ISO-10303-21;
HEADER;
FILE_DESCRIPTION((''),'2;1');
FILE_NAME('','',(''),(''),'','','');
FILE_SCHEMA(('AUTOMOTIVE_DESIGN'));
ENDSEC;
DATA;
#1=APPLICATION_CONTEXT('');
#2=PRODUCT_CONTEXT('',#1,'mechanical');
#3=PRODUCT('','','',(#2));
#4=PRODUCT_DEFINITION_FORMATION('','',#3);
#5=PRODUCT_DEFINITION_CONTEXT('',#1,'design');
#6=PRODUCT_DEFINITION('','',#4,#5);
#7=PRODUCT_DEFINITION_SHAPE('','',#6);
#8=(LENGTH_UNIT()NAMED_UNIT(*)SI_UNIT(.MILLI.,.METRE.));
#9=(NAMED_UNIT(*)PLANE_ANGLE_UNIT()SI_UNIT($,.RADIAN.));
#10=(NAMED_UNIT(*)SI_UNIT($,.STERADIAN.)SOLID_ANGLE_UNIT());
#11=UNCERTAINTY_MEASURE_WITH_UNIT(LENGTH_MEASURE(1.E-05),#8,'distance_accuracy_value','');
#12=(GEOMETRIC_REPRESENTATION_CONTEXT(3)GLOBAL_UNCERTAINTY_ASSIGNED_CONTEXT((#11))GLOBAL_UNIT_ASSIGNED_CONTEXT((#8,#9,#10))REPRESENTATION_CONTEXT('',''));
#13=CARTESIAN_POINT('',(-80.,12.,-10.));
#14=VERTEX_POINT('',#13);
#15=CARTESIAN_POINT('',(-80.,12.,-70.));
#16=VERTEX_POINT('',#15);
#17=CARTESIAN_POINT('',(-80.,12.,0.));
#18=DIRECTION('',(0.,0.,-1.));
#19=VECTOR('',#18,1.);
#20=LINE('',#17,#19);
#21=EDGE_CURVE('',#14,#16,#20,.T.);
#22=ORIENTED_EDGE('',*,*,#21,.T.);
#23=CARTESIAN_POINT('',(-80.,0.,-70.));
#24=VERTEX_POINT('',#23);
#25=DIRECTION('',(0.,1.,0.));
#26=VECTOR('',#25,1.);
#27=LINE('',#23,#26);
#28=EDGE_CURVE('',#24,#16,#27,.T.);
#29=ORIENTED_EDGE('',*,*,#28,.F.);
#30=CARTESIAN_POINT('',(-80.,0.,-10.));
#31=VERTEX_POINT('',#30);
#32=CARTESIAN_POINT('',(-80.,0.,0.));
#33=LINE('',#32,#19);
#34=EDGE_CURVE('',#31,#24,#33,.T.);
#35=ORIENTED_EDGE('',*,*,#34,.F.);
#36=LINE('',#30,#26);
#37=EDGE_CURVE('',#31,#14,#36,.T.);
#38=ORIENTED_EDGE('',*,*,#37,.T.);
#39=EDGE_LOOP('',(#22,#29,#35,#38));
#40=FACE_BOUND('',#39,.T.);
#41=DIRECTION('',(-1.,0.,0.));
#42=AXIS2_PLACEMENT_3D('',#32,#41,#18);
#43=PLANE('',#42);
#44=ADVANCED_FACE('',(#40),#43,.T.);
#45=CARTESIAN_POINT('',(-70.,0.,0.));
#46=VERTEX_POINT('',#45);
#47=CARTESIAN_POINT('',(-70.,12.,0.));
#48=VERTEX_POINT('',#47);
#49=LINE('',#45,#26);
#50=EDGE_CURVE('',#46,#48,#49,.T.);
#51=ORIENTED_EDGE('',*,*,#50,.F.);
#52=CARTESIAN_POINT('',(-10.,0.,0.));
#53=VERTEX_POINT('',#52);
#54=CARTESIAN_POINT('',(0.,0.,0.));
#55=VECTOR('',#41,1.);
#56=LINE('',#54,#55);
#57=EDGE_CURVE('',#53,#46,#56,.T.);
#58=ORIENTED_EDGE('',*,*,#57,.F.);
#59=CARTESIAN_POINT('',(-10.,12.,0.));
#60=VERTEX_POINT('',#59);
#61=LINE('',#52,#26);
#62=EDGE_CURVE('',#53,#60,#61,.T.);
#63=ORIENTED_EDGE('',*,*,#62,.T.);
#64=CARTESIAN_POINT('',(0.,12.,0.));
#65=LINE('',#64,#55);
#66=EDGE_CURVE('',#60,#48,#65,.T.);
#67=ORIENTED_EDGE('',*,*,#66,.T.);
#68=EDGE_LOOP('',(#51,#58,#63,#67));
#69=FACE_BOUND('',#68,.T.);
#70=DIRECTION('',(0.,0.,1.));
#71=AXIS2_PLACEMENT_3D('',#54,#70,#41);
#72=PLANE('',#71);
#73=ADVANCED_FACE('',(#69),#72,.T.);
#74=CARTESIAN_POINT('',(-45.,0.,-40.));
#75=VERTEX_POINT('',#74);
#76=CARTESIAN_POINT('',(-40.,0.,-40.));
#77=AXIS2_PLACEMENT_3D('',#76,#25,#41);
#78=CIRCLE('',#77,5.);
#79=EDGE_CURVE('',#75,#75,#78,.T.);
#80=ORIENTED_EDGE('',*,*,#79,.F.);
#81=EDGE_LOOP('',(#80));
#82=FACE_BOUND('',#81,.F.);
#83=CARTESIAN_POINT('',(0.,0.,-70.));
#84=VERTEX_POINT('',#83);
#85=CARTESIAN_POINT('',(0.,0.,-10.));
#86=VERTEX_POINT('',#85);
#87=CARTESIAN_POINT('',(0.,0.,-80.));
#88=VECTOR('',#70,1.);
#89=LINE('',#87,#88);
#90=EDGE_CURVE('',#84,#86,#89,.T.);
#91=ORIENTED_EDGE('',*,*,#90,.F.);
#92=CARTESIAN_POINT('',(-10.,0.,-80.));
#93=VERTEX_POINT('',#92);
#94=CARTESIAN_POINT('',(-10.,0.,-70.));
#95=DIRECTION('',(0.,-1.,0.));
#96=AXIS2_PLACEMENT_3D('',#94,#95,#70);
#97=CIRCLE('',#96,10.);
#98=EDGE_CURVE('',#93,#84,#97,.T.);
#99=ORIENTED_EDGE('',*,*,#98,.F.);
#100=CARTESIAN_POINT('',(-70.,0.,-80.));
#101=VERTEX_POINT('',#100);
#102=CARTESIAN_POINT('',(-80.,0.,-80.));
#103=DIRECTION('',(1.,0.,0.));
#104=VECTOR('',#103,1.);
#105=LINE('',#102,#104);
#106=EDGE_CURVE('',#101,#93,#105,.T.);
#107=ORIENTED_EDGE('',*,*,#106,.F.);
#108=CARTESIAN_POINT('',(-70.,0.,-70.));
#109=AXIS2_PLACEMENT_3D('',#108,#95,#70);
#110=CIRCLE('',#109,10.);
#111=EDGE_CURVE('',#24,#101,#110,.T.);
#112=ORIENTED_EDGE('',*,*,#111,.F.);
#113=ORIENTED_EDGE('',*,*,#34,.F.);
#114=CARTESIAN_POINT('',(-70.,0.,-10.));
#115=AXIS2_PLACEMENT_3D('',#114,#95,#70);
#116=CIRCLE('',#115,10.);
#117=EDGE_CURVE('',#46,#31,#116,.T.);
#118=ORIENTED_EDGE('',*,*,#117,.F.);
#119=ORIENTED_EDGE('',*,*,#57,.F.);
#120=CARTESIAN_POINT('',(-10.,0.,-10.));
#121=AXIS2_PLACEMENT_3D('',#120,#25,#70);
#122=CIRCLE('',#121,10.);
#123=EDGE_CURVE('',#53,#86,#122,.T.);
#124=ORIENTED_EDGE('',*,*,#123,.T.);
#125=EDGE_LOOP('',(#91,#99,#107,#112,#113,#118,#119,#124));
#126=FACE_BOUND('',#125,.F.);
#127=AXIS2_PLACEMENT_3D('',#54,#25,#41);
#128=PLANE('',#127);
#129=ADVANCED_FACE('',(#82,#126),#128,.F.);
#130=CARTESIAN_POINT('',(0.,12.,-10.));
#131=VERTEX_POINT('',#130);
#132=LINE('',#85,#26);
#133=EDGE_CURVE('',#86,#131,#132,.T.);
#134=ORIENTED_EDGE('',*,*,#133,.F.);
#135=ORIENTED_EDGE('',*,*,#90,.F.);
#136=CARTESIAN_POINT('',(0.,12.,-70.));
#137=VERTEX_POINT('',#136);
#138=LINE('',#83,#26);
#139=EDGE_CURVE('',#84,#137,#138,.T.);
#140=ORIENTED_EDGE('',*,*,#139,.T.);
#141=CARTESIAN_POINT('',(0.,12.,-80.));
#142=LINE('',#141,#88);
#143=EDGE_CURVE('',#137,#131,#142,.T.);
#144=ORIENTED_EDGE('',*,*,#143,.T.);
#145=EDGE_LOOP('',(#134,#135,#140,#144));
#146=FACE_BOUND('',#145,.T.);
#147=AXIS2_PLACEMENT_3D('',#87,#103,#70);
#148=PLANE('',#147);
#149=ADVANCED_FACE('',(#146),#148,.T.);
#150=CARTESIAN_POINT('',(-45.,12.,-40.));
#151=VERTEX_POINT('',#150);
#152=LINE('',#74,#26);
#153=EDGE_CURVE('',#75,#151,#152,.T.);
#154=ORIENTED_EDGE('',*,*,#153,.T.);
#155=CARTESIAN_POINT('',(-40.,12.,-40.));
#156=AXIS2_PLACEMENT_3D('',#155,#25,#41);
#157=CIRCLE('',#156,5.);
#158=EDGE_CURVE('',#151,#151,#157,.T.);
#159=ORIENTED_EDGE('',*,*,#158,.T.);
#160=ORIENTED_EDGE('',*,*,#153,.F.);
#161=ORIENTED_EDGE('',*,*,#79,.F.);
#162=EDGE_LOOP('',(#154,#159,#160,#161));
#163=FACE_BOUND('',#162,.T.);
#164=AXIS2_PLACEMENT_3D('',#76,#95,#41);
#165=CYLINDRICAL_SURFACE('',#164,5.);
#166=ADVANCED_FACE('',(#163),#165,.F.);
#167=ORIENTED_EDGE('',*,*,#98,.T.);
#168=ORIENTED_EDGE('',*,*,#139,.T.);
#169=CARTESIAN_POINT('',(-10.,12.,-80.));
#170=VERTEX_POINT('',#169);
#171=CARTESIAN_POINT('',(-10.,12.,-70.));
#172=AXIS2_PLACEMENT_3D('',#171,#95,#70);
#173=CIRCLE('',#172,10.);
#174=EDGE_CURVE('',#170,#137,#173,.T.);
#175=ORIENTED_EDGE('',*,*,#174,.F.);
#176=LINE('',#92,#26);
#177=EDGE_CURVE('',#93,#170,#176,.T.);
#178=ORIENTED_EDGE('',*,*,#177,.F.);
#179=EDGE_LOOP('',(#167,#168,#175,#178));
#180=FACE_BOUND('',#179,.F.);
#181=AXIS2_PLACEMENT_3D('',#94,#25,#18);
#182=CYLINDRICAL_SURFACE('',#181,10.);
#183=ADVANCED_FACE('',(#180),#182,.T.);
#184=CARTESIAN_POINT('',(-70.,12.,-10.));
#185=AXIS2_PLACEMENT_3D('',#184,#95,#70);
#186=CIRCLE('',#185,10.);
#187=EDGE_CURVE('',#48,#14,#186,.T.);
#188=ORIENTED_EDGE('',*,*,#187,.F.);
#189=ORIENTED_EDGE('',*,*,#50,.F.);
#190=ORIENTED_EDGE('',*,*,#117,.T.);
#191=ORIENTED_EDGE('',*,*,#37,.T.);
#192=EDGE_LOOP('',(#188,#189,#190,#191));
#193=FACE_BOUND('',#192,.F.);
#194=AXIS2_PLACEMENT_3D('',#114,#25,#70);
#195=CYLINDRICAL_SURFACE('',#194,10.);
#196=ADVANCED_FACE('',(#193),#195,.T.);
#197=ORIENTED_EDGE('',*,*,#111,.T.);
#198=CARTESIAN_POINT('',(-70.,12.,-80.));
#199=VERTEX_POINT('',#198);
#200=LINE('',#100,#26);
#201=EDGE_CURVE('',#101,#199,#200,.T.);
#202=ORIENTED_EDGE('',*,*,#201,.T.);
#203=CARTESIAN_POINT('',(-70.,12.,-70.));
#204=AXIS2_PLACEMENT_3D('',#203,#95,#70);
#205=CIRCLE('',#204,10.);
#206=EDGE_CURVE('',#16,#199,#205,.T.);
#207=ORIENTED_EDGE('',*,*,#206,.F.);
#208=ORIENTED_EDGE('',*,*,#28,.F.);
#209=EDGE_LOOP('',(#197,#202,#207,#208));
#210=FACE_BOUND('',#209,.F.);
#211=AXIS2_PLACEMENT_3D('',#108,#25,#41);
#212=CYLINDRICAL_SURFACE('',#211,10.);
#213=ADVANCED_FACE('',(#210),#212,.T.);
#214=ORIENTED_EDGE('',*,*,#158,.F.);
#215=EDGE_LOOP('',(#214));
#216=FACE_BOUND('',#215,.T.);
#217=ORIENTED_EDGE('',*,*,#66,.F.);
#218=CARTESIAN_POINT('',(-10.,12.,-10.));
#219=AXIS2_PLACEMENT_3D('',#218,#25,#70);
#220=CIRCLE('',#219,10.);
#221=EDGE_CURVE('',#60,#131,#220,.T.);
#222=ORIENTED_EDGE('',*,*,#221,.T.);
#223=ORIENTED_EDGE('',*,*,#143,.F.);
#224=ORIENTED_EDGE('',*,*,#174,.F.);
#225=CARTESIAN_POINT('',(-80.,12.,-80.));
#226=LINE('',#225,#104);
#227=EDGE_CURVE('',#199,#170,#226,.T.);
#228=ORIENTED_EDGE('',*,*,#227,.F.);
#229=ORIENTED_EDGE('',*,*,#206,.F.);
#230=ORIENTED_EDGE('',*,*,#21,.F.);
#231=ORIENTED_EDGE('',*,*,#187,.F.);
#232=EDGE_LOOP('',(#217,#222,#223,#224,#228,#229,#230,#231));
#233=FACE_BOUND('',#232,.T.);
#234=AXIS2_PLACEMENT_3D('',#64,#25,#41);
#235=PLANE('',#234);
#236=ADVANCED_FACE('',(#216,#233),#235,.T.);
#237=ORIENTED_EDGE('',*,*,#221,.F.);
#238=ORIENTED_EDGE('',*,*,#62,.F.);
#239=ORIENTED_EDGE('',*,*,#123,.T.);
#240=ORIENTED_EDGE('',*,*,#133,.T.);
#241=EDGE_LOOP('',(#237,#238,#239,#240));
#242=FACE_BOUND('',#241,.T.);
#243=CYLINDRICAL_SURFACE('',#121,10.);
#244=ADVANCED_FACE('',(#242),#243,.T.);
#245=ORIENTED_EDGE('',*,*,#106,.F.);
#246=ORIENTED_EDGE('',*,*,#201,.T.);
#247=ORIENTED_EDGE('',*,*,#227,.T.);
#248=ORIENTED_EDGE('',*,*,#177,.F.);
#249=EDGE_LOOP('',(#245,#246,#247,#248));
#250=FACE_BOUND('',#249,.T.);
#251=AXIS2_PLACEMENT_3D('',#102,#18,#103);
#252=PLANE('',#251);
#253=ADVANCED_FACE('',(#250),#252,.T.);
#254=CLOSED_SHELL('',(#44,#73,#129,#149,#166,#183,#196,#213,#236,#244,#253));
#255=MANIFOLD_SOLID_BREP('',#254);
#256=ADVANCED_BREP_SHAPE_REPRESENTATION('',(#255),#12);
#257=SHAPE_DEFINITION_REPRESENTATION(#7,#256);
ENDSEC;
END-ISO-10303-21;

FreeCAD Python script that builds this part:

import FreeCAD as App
import Part
import Sketcher
from FreeCAD import Vector


def edges_at(feature, points):
    """Names of the edges that pass closest to the given points."""
    edges = feature.Shape.Edges
    near = lambda p: min(range(len(edges)), key=lambda i: edges[i].distToShape(Part.Vertex(*p))[0])
    return sorted({f"Edge{near(p) + 1}" for p in points})


def add_polygon(sketch, points):
    """Adds a closed chain of lines whose ends are joined by coincident constraints."""
    first, n = sketch.GeometryCount, len(points)
    for a, b in zip(points, points[1:] + points[:1]):
        sketch.addGeometry(Part.LineSegment(App.Vector(*a, 0), App.Vector(*b, 0)), False)
    for i in range(n):
        sketch.addConstraint(Sketcher.Constraint("Coincident", first + i, 2, first + (i + 1) % n, 1))

doc = App.newDocument("Part")
body = doc.addObject("PartDesign::Body", "Body")

sketch1 = doc.addObject("Sketcher::SketchObject", "Sketch")
body.addObject(sketch1)
sketch1.AttachmentSupport = (doc.XZ_Plane, [""])
sketch1.MapMode = "FlatFace"
add_polygon(sketch1, [(-80, 0), (0, 0), (0, -80), (-80, -80)])
sketch1.addGeometry(Part.Circle(Vector(-40, -40, 0), Vector(0, 0, 1), 5), False)
sketch1.addConstraint([
    Sketcher.Constraint("Horizontal", 0),
    Sketcher.Constraint("Vertical", 1),
    Sketcher.Constraint("Horizontal", 2),
    Sketcher.Constraint("Vertical", 3),
    Sketcher.Constraint("Coincident", 0, 2, -1, 1),
    Sketcher.Constraint("Equal", 2, 1),
    Sketcher.Constraint("Diameter", 4, 10.0),
    Sketcher.Constraint("DistanceX", 0, 1, 0, 2, 80.0),
    Sketcher.Constraint("DistanceX", 4, 3, -1, 1, 40.0),
    Sketcher.Constraint("DistanceY", 4, 3, -1, 1, 40.0),
])
pad1 = doc.addObject("PartDesign::Pad", "Pad")
body.addObject(pad1)
pad1.Profile = sketch1
pad1.Length = 12
pad1.Reversed = True
doc.recompute()

fillet = doc.addObject("PartDesign::Fillet", "Fillet")
body.addObject(fillet)
fillet.Base = (pad1, edges_at(pad1, [
    (-80, 6, 0),
    (0, 6, 0),
    (0, 6, -80),
    (-80, 6, -80),
]))
fillet.Radius = 10

doc.recompute()
